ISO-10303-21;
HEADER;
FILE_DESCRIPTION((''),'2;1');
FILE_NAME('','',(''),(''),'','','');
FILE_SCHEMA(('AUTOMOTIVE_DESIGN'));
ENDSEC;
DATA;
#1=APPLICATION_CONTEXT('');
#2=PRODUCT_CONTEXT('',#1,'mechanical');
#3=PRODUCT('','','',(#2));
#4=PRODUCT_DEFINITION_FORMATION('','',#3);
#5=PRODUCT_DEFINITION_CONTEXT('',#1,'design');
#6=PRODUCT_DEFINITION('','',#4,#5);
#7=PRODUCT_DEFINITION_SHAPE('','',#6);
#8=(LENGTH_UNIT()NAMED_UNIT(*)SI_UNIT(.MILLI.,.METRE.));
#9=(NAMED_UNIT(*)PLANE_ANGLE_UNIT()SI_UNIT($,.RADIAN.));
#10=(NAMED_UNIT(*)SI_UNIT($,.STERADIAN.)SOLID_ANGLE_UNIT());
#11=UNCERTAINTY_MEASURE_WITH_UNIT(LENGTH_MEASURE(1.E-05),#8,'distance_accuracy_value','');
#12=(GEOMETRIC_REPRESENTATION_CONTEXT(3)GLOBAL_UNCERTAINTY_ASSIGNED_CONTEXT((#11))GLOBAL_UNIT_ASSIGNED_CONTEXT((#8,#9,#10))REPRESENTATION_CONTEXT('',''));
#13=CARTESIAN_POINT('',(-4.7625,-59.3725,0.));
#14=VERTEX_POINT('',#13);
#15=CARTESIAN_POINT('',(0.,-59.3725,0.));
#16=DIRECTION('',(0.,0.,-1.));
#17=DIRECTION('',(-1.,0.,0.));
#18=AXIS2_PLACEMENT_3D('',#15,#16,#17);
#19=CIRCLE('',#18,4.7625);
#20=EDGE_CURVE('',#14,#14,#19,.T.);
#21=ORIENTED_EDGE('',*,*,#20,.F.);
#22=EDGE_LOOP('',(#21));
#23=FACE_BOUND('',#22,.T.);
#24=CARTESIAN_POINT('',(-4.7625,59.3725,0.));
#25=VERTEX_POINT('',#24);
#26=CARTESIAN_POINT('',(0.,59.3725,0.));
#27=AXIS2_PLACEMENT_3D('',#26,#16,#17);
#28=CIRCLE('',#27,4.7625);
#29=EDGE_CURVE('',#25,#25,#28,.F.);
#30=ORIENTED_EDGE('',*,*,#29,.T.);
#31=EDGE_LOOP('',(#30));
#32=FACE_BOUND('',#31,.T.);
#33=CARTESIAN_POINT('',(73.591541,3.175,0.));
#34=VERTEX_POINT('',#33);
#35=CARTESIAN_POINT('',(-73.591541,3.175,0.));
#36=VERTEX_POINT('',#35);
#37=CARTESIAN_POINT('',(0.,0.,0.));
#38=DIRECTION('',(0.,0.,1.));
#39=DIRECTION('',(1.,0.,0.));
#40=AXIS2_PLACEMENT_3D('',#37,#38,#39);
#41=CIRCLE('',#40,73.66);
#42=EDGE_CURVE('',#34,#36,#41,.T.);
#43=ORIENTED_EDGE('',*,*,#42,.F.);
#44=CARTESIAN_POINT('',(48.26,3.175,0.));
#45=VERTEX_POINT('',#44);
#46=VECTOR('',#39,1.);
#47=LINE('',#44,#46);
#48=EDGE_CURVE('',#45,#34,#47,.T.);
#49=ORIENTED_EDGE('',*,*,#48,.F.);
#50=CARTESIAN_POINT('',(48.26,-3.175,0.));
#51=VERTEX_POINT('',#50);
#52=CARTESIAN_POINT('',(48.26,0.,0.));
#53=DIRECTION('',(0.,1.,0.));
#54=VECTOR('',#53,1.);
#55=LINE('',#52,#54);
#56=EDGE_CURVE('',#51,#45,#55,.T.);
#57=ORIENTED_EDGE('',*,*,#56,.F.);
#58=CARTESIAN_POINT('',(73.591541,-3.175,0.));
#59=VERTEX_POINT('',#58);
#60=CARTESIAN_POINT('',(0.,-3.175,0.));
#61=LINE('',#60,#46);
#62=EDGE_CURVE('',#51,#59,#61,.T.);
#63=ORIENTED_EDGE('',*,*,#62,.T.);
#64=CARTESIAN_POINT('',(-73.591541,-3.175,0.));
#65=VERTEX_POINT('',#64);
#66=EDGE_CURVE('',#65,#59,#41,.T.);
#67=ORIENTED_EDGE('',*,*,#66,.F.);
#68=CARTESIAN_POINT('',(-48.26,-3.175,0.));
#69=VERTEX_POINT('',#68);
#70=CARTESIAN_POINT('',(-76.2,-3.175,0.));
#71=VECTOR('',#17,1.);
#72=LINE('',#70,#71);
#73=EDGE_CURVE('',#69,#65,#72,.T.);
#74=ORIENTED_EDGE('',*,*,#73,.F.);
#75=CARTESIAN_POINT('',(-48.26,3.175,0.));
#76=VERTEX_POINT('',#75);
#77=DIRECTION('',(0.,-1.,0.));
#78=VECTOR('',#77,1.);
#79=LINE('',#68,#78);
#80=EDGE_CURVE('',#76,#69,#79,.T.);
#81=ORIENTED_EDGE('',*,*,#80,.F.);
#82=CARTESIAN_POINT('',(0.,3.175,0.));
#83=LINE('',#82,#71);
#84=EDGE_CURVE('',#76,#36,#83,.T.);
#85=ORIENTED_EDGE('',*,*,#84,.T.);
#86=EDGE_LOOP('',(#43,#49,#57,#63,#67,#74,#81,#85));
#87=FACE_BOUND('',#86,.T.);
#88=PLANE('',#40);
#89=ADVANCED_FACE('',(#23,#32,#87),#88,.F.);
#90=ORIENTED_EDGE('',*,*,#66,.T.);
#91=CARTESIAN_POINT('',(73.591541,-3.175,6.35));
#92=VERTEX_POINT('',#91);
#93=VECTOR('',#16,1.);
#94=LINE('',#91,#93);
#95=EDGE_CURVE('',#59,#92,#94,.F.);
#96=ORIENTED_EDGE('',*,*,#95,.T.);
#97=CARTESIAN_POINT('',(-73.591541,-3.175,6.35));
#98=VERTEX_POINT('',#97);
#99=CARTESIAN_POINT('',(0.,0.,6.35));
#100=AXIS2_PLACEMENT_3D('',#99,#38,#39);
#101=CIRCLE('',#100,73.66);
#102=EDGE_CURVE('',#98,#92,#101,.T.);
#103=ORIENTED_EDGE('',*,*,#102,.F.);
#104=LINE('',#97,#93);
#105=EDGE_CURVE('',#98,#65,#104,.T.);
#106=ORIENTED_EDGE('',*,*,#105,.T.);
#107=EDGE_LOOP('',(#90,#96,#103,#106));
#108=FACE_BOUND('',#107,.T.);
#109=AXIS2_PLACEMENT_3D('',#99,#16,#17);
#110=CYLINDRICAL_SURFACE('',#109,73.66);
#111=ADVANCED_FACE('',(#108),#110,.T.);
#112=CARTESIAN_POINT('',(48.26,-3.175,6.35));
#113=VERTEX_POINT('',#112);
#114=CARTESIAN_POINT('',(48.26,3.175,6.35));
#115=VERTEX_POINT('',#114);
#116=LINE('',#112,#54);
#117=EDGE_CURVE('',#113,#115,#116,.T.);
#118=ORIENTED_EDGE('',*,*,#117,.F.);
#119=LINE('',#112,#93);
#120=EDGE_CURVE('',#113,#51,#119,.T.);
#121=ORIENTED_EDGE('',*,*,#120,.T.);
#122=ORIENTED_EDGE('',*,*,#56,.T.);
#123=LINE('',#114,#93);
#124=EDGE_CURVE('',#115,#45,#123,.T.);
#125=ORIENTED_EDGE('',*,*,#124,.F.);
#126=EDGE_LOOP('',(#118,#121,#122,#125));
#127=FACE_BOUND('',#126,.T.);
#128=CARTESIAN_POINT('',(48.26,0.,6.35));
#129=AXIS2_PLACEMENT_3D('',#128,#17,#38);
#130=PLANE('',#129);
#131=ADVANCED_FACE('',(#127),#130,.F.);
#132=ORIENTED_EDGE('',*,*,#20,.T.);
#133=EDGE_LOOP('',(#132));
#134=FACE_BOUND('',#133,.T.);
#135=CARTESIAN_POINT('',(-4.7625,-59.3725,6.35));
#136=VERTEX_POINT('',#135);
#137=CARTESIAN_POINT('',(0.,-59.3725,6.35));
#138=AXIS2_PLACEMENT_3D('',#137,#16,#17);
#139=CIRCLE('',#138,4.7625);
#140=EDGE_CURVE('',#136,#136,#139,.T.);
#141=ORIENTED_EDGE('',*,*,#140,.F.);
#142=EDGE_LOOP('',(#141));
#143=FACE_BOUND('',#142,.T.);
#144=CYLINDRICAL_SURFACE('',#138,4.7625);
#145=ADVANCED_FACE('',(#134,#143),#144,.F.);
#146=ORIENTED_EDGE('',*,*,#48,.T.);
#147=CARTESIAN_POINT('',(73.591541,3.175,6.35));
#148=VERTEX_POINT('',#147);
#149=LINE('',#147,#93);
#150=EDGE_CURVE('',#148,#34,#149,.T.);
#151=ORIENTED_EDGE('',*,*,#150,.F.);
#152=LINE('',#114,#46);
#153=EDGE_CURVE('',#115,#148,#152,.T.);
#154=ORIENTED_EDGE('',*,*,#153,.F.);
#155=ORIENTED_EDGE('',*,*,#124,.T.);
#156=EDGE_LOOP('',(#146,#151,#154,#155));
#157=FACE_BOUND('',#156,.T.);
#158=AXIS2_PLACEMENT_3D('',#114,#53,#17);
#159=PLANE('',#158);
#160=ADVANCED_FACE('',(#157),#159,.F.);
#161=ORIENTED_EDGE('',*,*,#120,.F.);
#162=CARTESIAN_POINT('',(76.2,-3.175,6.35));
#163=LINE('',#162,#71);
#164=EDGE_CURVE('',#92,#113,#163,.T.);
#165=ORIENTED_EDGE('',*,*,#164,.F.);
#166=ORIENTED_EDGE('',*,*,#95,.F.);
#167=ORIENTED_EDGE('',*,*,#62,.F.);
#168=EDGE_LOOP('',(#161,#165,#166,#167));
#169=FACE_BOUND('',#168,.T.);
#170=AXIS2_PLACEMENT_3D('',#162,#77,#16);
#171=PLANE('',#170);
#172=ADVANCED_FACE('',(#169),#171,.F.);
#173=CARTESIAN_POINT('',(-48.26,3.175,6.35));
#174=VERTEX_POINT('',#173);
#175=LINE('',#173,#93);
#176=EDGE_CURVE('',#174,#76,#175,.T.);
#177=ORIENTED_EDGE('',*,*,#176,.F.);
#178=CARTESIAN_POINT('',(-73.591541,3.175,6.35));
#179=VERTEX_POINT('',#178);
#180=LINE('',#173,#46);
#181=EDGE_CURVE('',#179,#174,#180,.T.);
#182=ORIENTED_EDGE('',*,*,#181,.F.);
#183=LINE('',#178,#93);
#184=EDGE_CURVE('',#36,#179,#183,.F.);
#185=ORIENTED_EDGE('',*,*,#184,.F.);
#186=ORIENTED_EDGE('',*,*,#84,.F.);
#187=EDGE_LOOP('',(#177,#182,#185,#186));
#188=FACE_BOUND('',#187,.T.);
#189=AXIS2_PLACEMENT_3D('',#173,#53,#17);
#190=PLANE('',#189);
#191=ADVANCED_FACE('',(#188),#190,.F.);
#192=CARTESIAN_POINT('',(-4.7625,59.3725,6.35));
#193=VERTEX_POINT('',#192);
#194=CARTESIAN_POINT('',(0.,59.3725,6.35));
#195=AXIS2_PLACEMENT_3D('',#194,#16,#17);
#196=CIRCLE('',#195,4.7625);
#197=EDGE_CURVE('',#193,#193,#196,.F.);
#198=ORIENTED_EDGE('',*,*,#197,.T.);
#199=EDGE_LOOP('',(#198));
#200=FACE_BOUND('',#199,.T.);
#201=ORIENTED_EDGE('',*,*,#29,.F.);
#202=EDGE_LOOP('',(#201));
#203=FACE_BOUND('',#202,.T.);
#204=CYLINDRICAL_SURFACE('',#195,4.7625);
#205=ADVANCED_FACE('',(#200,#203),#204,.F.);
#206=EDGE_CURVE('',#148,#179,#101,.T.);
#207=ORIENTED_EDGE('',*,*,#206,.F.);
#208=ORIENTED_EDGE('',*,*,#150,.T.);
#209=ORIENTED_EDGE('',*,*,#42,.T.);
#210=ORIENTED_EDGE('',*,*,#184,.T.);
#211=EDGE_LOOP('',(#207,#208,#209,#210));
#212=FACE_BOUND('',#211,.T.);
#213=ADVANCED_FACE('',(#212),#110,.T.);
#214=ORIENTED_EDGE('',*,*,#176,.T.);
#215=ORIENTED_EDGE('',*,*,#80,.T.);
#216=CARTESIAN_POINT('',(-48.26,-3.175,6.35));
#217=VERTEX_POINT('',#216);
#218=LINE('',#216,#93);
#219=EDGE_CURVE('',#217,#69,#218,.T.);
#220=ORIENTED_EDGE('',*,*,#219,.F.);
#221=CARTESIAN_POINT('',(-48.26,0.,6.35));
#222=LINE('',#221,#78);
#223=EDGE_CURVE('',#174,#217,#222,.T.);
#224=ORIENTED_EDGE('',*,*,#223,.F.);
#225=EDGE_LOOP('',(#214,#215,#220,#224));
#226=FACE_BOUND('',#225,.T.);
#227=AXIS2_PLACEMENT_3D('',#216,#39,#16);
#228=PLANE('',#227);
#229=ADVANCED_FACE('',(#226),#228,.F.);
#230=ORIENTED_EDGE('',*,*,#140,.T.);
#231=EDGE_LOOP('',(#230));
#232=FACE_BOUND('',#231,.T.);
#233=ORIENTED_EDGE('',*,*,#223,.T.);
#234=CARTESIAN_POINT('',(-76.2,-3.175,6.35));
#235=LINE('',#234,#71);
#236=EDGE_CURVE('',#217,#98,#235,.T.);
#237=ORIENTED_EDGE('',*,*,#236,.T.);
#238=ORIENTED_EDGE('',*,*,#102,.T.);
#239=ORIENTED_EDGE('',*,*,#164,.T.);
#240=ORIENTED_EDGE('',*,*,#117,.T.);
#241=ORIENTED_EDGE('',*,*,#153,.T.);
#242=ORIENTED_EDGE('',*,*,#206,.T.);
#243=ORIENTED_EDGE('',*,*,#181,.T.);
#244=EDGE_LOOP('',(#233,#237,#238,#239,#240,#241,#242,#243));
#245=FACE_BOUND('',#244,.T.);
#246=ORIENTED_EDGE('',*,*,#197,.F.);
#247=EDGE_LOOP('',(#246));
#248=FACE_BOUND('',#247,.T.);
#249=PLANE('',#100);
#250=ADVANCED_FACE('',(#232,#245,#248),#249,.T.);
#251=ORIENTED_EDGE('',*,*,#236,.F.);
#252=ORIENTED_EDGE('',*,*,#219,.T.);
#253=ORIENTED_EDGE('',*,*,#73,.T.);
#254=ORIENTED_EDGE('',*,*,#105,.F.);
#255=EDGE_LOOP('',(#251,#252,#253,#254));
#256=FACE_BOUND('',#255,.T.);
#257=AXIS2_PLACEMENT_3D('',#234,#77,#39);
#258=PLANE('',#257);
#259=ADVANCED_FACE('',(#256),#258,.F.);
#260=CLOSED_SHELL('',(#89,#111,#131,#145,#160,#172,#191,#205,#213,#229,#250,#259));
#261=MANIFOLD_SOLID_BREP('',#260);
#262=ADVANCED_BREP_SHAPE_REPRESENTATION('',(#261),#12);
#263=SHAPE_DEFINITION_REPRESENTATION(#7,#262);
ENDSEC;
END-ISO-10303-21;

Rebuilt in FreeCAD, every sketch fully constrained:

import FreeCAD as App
import Part
import Sketcher
from FreeCAD import Vector
Q = App.Units.Quantity

doc = App.newDocument("Part")
params = doc.addObject("Spreadsheet::Sheet", "Params")
for row, (alias, value) in enumerate([
    ("sketch1_diameter", "5.8 in"),
    ("pad1_length", "0.25 in"),
    ("sketch2_width", "1.1 in"),
    ("sketch2_height", "0.25 in"),
    ("sketch3_diameter", "0.375 in"),
], start=1):
    params.set(f"A{row}", alias)
    params.set(f"B{row}", "=" + value)
    params.setAlias(f"B{row}", alias)

body = doc.addObject("PartDesign::Body", "Body")

# Sketch on XY plane
sketch1 = doc.addObject("Sketcher::SketchObject", "Sketch")
body.addObject(sketch1)
sketch1.AttachmentSupport = (doc.XY_Plane, [""])
sketch1.MapMode = "FlatFace"
sketch1.addGeometry(Part.Circle(Vector(0, 0, 0), Vector(0, 0, 1), 73.66), False)
sketch1.addConstraint(Sketcher.Constraint("Coincident", 0, 3, -1, 1))
sketch1.addConstraint(Sketcher.Constraint("Diameter", 0, Q("5.8 in")))
sketch1.setExpression("Constraints[1]", "Params.sketch1_diameter")
pad1 = doc.addObject("PartDesign::Pad", "Pad")
body.addObject(pad1)
pad1.Profile = sketch1
pad1.setExpression("Length", "Params.pad1_length")

# Sketch on XY plane
sketch2 = doc.addObject("Sketcher::SketchObject", "Sketch001")
body.addObject(sketch2)
sketch2.AttachmentSupport = (doc.XY_Plane, [""])
sketch2.MapMode = "FlatFace"
sketch2.addGeometry(Part.LineSegment(Vector(48.26, 3.175, 0), Vector(76.2, 3.175, 0)), False)
sketch2.addGeometry(Part.LineSegment(Vector(76.2, 3.175, 0), Vector(76.2, -3.175, 0)), False)
sketch2.addGeometry(Part.LineSegment(Vector(76.2, -3.175, 0), Vector(48.26, -3.175, 0)), False)
sketch2.addGeometry(Part.LineSegment(Vector(48.26, -3.175, 0), Vector(48.26, 3.175, 0)), False)
sketch2.addGeometry(Part.LineSegment(Vector(-48.26, 3.175, 0), Vector(-48.26, -3.175, 0)), False)
sketch2.addGeometry(Part.LineSegment(Vector(-48.26, -3.175, 0), Vector(-76.2, -3.175, 0)), False)
sketch2.addGeometry(Part.LineSegment(Vector(-76.2, -3.175, 0), Vector(-76.2, 3.175, 0)), False)
sketch2.addGeometry(Part.LineSegment(Vector(-76.2, 3.175, 0), Vector(-48.26, 3.175, 0)), False)
sketch2.addConstraint(Sketcher.Constraint("Coincident", 0, 2, 1, 1))
sketch2.addConstraint(Sketcher.Constraint("Coincident", 1, 2, 2, 1))
sketch2.addConstraint(Sketcher.Constraint("Coincident", 2, 2, 3, 1))
sketch2.addConstraint(Sketcher.Constraint("Coincident", 3, 2, 0, 1))
sketch2.addConstraint(Sketcher.Constraint("Coincident", 4, 2, 5, 1))
sketch2.addConstraint(Sketcher.Constraint("Coincident", 5, 2, 6, 1))
sketch2.addConstraint(Sketcher.Constraint("Coincident", 6, 2, 7, 1))
sketch2.addConstraint(Sketcher.Constraint("Coincident", 7, 2, 4, 1))
sketch2.addConstraint(Sketcher.Constraint("Horizontal", 0))
sketch2.addConstraint(Sketcher.Constraint("Vertical", 1))
sketch2.addConstraint(Sketcher.Constraint("Horizontal", 2))
sketch2.addConstraint(Sketcher.Constraint("Vertical", 3))
sketch2.addConstraint(Sketcher.Constraint("Vertical", 4))
sketch2.addConstraint(Sketcher.Constraint("Horizontal", 5))
sketch2.addConstraint(Sketcher.Constraint("Vertical", 6))
sketch2.addConstraint(Sketcher.Constraint("Horizontal", 7))
sketch2.addConstraint(Sketcher.Constraint("Symmetric", 3, 2, 4, 2, -1, 1))
sketch2.addConstraint(Sketcher.Constraint("Symmetric", 1, 2, 6, 2, -1, 1))
sketch2.addConstraint(Sketcher.Constraint("Horizontal", 2, 2, 4, 2))
sketch2.addConstraint(Sketcher.Constraint("DistanceX", 0, 1, 0, 2, Q("1.1 in")))
sketch2.addConstraint(Sketcher.Constraint("DistanceX", -1, 1, 0, 2, Q("3 in")))
sketch2.addConstraint(Sketcher.Constraint("DistanceY", 1, 2, 1, 1, Q("0.25 in")))
sketch2.setExpression("Constraints[19]", "Params.sketch2_width")
sketch2.setExpression("Constraints[21]", "Params.sketch2_height")
pocket1 = doc.addObject("PartDesign::Pocket", "Pocket")
body.addObject(pocket1)
pocket1.Profile = sketch2
pocket1.Type = "ThroughAll"
pocket1.Reversed = True

# Sketch on XY plane
sketch3 = doc.addObject("Sketcher::SketchObject", "Sketch002")
body.addObject(sketch3)
sketch3.AttachmentSupport = (doc.XY_Plane, [""])
sketch3.MapMode = "FlatFace"
sketch3.addGeometry(Part.Circle(Vector(0, -59.3725, 0), Vector(0, 0, 1), 4.7625), False)
sketch3.addGeometry(Part.Circle(Vector(0, 59.3725, 0), Vector(0, 0, 1), 4.7625), False)
sketch3.addConstraint(Sketcher.Constraint("Equal", 0, 1))
sketch3.addConstraint(Sketcher.Constraint("Symmetric", 0, 3, 1, 3, -1, 1))
sketch3.addConstraint(Sketcher.Constraint("PointOnObject", 0, 3, -2))
sketch3.addConstraint(Sketcher.Constraint("Diameter", 0, Q("0.375 in")))
sketch3.addConstraint(Sketcher.Constraint("DistanceY", 0, 3, 1, 3, Q("4.675 in")))
sketch3.setExpression("Constraints[3]", "Params.sketch3_diameter")
pocket2 = doc.addObject("PartDesign::Pocket", "Pocket001")
body.addObject(pocket2)
pocket2.Profile = sketch3
pocket2.Type = "ThroughAll"
pocket2.Reversed = True

doc.recompute()
